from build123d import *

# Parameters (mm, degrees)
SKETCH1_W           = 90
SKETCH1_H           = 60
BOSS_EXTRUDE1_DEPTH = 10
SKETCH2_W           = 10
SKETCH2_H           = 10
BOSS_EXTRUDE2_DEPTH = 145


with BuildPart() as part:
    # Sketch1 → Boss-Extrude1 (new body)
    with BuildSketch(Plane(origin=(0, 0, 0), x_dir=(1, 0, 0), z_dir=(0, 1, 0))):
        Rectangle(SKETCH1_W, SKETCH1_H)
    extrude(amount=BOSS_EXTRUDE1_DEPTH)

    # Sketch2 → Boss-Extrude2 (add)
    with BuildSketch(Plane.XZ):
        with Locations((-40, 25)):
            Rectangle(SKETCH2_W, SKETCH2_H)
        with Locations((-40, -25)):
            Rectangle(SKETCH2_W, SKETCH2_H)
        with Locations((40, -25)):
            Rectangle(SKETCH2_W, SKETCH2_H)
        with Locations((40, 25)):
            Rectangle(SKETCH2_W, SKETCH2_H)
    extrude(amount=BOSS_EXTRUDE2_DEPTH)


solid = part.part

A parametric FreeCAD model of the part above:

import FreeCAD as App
import Part
import Sketcher
from FreeCAD import Vector
Q = App.Units.Quantity

doc = App.newDocument("Part")
body = doc.addObject("PartDesign::Body", "Body")

# Sketch on XZ plane
sketch1 = body.newObject("Sketcher::SketchObject", "Sketch")
sketch1.AttachmentSupport = (doc.getObject("XZ_Plane"), [""])
sketch1.MapMode = "FlatFace"
sketch1.addGeometry(Part.LineSegment(Vector(-45, -30, 0), Vector(-45, 30, 0)), False)
sketch1.addGeometry(Part.LineSegment(Vector(-45, 30, 0), Vector(45, 30, 0)), False)
sketch1.addGeometry(Part.LineSegment(Vector(45, 30, 0), Vector(45, -30, 0)), False)
sketch1.addGeometry(Part.LineSegment(Vector(45, -30, 0), Vector(-45, -30, 0)), False)
sketch1.addConstraint(Sketcher.Constraint("Coincident", 0, 2, 1, 1))
sketch1.addConstraint(Sketcher.Constraint("Coincident", 1, 2, 2, 1))
sketch1.addConstraint(Sketcher.Constraint("Coincident", 2, 2, 3, 1))
sketch1.addConstraint(Sketcher.Constraint("Coincident", 3, 2, 0, 1))
sketch1.addConstraint(Sketcher.Constraint("Vertical", 0))
sketch1.addConstraint(Sketcher.Constraint("Horizontal", 1))
sketch1.addConstraint(Sketcher.Constraint("Vertical", 2))
sketch1.addConstraint(Sketcher.Constraint("Horizontal", 3))
sketch1.addConstraint(Sketcher.Constraint("Symmetric", 0, 2, 2, 2, -1, 1))
sketch1.addConstraint(Sketcher.Constraint("DistanceX", 1, 1, 1, 2, Q("90 mm")))
sketch1.addConstraint(Sketcher.Constraint("DistanceY", 0, 1, 0, 2, Q("60 mm")))
pad1 = body.newObject("PartDesign::Pad", "Pad")
pad1.Profile = sketch1
pad1.Length = 10
pad1.Reversed = True

# Sketch on XZ plane
sketch2 = body.newObject("Sketcher::SketchObject", "Sketch001")
sketch2.AttachmentSupport = (doc.getObject("XZ_Plane"), [""])
sketch2.MapMode = "FlatFace"
sketch2.addGeometry(Part.LineSegment(Vector(-45, 30, 0), Vector(-45, 20, 0)), False)
sketch2.addGeometry(Part.LineSegment(Vector(-45, 20, 0), Vector(-35, 20, 0)), False)
sketch2.addGeometry(Part.LineSegment(Vector(-35, 20, 0), Vector(-35, 30, 0)), False)
sketch2.addGeometry(Part.LineSegment(Vector(-35, 30, 0), Vector(-45, 30, 0)), False)
sketch2.addGeometry(Part.LineSegment(Vector(-45, -20, 0), Vector(-45, -30, 0)), False)
sketch2.addGeometry(Part.LineSegment(Vector(-45, -30, 0), Vector(-35, -30, 0)), False)
sketch2.addGeometry(Part.LineSegment(Vector(-35, -30, 0), Vector(-35, -20, 0)), False)
sketch2.addGeometry(Part.LineSegment(Vector(-35, -20, 0), Vector(-45, -20, 0)), False)
sketch2.addGeometry(Part.LineSegment(Vector(35, -20, 0), Vector(35, -30, 0)), False)
sketch2.addGeometry(Part.LineSegment(Vector(35, -30, 0), Vector(45, -30, 0)), False)
sketch2.addGeometry(Part.LineSegment(Vector(45, -30, 0), Vector(45, -20, 0)), False)
sketch2.addGeometry(Part.LineSegment(Vector(45, -20, 0), Vector(35, -20, 0)), False)
sketch2.addGeometry(Part.LineSegment(Vector(35, 30, 0), Vector(35, 20, 0)), False)
sketch2.addGeometry(Part.LineSegment(Vector(35, 20, 0), Vector(45, 20, 0)), False)
sketch2.addGeometry(Part.LineSegment(Vector(45, 20, 0), Vector(45, 30, 0)), False)
sketch2.addGeometry(Part.LineSegment(Vector(45, 30, 0), Vector(35, 30, 0)), False)
sketch2.addConstraint(Sketcher.Constraint("Coincident", 0, 2, 1, 1))
sketch2.addConstraint(Sketcher.Constraint("Coincident", 1, 2, 2, 1))
sketch2.addConstraint(Sketcher.Constraint("Coincident", 2, 2, 3, 1))
sketch2.addConstraint(Sketcher.Constraint("Coincident", 3, 2, 0, 1))
sketch2.addConstraint(Sketcher.Constraint("Coincident", 4, 2, 5, 1))
sketch2.addConstraint(Sketcher.Constraint("Coincident", 5, 2, 6, 1))
sketch2.addConstraint(Sketcher.Constraint("Coincident", 6, 2, 7, 1))
sketch2.addConstraint(Sketcher.Constraint("Coincident", 7, 2, 4, 1))
sketch2.addConstraint(Sketcher.Constraint("Coincident", 8, 2, 9, 1))
sketch2.addConstraint(Sketcher.Constraint("Coincident", 9, 2, 10, 1))
sketch2.addConstraint(Sketcher.Constraint("Coincident", 10, 2, 11, 1))
sketch2.addConstraint(Sketcher.Constraint("Coincident", 11, 2, 8, 1))
sketch2.addConstraint(Sketcher.Constraint("Coincident", 12, 2, 13, 1))
sketch2.addConstraint(Sketcher.Constraint("Coincident", 13, 2, 14, 1))
sketch2.addConstraint(Sketcher.Constraint("Coincident", 14, 2, 15, 1))
sketch2.addConstraint(Sketcher.Constraint("Coincident", 15, 2, 12, 1))
sketch2.addConstraint(Sketcher.Constraint("Vertical", 0))
sketch2.addConstraint(Sketcher.Constraint("Horizontal", 1))
sketch2.addConstraint(Sketcher.Constraint("Vertical", 2))
sketch2.addConstraint(Sketcher.Constraint("Horizontal", 3))
sketch2.addConstraint(Sketcher.Constraint("Vertical", 4))
sketch2.addConstraint(Sketcher.Constraint("Horizontal", 5))
sketch2.addConstraint(Sketcher.Constraint("Vertical", 6))
sketch2.addConstraint(Sketcher.Constraint("Horizontal", 7))
sketch2.addConstraint(Sketcher.Constraint("Vertical", 8))
sketch2.addConstraint(Sketcher.Constraint("Horizontal", 9))
sketch2.addConstraint(Sketcher.Constraint("Vertical", 10))
sketch2.addConstraint(Sketcher.Constraint("Horizontal", 11))
sketch2.addConstraint(Sketcher.Constraint("Vertical", 12))
sketch2.addConstraint(Sketcher.Constraint("Horizontal", 13))
sketch2.addConstraint(Sketcher.Constraint("Vertical", 14))
sketch2.addConstraint(Sketcher.Constraint("Horizontal", 15))
sketch2.addConstraint(Sketcher.Constraint("Symmetric", 2, 2, 8, 2, -1, 1))
sketch2.addConstraint(Sketcher.Constraint("Symmetric", 0, 2, 10, 2, -1, 1))
sketch2.addConstraint(Sketcher.Constraint("Symmetric", 6, 2, 12, 2, -1, 1))
sketch2.addConstraint(Sketcher.Constraint("Symmetric", 4, 2, 14, 2, -1, 1))
sketch2.addConstraint(Sketcher.Constraint("Symmetric", 5, 2, 8, 2, -2))
sketch2.addConstraint(Sketcher.Constraint("Symmetric", 7, 2, 10, 2, -2))
sketch2.addConstraint(Sketcher.Constraint("Equal", 15, 0))
sketch2.addConstraint(Sketcher.Constraint("DistanceX", 1, 1, 1, 2, Q("10 mm")))
sketch2.addConstraint(Sketcher.Constraint("DistanceX", 0, 2, -1, 1, Q("45 mm")))
sketch2.addConstraint(Sketcher.Constraint("DistanceY", -1, 1, 0, 2, Q("20 mm")))
pad2 = body.newObject("PartDesign::Pad", "Pad001")
pad2.Profile = sketch2
pad2.Length = 145

doc.recompute()
